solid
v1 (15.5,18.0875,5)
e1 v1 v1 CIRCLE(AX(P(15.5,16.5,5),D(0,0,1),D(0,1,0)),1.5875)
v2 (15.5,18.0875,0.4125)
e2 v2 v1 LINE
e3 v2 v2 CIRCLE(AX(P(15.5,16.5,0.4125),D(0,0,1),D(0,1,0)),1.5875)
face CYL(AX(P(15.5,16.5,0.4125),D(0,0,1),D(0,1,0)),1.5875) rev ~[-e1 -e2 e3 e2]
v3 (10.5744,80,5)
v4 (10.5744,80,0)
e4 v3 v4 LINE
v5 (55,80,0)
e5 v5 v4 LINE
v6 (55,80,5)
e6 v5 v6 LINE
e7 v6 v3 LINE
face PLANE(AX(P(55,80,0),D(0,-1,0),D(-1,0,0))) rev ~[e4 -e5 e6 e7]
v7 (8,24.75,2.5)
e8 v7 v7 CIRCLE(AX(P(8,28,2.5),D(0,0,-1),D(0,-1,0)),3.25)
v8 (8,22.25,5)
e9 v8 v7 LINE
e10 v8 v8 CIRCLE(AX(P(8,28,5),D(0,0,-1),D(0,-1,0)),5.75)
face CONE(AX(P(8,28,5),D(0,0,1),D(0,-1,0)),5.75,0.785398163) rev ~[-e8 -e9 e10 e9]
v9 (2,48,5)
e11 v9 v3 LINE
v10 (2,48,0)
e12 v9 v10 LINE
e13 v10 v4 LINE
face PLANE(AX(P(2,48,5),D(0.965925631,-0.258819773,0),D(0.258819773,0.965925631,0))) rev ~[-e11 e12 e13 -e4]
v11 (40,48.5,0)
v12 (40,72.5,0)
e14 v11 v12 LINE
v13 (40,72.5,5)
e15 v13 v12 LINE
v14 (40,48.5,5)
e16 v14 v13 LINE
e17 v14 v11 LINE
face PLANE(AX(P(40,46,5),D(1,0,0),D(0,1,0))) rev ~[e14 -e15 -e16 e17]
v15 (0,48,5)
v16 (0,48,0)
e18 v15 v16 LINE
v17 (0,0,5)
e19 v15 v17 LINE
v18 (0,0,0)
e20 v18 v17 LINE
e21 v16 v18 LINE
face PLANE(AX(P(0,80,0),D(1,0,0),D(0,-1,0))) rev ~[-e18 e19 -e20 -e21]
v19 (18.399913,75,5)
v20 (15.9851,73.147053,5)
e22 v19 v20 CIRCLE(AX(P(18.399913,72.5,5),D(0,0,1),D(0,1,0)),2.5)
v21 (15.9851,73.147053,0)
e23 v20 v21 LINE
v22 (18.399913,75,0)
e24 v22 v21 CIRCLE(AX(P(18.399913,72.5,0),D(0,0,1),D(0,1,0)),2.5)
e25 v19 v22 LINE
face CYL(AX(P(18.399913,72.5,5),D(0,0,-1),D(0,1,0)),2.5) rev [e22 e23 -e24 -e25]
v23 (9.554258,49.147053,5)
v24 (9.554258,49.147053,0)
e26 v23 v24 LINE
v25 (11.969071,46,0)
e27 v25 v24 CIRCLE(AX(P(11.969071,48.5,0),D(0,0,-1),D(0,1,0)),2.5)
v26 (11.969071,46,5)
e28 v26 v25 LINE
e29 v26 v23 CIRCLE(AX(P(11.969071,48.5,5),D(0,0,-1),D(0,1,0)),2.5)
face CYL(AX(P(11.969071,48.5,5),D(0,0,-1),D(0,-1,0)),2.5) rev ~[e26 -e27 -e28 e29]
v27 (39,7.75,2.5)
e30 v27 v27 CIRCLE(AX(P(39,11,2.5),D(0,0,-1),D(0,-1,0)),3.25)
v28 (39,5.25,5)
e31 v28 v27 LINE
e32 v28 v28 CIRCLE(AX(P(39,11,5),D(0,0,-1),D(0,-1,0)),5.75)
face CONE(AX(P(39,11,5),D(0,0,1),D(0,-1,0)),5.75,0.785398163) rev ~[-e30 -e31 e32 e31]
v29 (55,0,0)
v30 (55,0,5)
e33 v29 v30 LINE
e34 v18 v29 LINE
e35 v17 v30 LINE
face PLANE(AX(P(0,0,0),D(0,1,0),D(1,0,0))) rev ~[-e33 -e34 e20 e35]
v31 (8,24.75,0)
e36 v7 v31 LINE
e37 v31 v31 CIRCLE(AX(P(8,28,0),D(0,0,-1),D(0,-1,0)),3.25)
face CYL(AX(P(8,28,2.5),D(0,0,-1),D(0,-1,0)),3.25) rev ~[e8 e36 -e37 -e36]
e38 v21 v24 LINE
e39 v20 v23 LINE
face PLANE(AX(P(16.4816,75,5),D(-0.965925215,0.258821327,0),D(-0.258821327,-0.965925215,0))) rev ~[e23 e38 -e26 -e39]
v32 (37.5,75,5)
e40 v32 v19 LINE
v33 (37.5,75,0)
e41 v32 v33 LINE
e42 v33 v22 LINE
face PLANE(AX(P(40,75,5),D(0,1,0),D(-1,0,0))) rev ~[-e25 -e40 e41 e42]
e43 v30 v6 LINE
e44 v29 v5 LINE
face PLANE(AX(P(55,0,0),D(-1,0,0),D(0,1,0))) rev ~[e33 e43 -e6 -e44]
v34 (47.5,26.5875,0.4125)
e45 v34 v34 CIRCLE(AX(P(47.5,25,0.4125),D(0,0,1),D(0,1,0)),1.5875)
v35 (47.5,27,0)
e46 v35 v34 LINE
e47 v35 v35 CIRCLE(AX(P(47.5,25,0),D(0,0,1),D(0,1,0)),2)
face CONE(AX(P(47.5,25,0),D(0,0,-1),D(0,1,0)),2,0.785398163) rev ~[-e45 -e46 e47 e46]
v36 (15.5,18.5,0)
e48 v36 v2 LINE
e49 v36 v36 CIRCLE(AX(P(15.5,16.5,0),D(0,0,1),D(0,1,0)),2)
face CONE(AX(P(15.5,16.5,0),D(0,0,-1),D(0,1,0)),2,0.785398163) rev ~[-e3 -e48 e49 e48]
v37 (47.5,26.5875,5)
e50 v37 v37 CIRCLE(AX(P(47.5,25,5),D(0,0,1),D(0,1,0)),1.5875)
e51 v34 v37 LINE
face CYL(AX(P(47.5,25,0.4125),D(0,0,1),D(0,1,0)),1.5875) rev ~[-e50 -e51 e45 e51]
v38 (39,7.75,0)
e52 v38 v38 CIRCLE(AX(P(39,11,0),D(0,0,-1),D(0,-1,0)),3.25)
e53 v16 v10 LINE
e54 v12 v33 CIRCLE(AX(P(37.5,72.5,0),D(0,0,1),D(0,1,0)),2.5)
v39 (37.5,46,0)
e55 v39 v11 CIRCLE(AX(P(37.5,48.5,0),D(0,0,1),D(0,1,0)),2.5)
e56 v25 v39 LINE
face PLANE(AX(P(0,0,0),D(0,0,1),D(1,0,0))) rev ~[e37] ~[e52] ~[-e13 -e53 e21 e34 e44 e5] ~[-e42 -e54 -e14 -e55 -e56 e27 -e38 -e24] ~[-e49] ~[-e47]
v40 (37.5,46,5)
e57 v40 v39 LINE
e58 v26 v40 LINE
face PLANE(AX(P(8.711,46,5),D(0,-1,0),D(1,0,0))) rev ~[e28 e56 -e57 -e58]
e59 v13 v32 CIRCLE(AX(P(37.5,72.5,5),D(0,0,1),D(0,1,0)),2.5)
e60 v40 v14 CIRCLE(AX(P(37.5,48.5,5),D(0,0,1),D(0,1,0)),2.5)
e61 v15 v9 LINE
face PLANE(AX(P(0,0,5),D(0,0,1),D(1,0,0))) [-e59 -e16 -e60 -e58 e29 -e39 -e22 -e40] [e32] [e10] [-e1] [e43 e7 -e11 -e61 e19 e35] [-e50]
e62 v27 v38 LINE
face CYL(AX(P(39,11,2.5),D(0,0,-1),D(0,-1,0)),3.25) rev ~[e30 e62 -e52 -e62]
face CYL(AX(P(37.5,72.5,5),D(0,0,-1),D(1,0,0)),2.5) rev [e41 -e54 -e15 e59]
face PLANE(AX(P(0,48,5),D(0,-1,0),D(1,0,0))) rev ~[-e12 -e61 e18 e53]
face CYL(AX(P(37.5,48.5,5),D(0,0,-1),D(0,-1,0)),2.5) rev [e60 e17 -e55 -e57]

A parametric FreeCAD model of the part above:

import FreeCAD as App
import Part
import Sketcher
Q = App.Units.Quantity


def edges_at(feature, points):
    """Names of the edges that pass closest to the given points."""
    edges = feature.Shape.Edges
    near = lambda p: min(range(len(edges)), key=lambda i: edges[i].distToShape(Part.Vertex(*p))[0])
    return sorted({f"Edge{near(p) + 1}" for p in points})


def add_polygon(sketch, points):
    """Adds a closed chain of lines whose ends are joined by coincident constraints."""
    first, n = sketch.GeometryCount, len(points)
    for a, b in zip(points, points[1:] + points[:1]):
        sketch.addGeometry(Part.LineSegment(App.Vector(*a, 0), App.Vector(*b, 0)), False)
    for i in range(n):
        sketch.addConstraint(Sketcher.Constraint("Coincident", first + i, 2, first + (i + 1) % n, 1))

doc = App.newDocument("Part")
body = doc.addObject("PartDesign::Body", "Body")

# Sketch on XY plane
sketch1 = body.newObject("Sketcher::SketchObject", "Sketch")
sketch1.AttachmentSupport = (doc.getObject("XY_Plane"), [""])
sketch1.MapMode = "FlatFace"
add_polygon(sketch1, [(0, 80), (0, 0), (55, 0), (55, 80)])  # lines 0-3
sketch1.addConstraint(Sketcher.Constraint("Vertical", 0))
sketch1.addConstraint(Sketcher.Constraint("Horizontal", 1))
sketch1.addConstraint(Sketcher.Constraint("Vertical", 2))
sketch1.addConstraint(Sketcher.Constraint("Horizontal", 3))
sketch1.addConstraint(Sketcher.Constraint("Coincident", 0, 2, -1, 1))
sketch1.addConstraint(Sketcher.Constraint("DistanceX", 1, 1, 1, 2, 55.0))
sketch1.addConstraint(Sketcher.Constraint("DistanceY", 0, 2, 0, 1, 80.0))
pad1 = body.newObject("PartDesign::Pad", "Pad")
pad1.Profile = sketch1
pad1.Length = 5

# Sketch on XY plane
sketch2 = body.newObject("Sketcher::SketchObject", "Sketch001")
sketch2.AttachmentSupport = (doc.getObject("XY_Plane"), [""])
sketch2.MapMode = "FlatFace"
sketch2.AttachmentOffset = App.Placement(App.Vector(0, 0, 5), App.Rotation())
add_polygon(sketch2, [(0, 80), (0, 48), (2, 48), (10.5744, 80)])  # lines 0-3
sketch2.addConstraint(Sketcher.Constraint("Vertical", 0))
sketch2.addConstraint(Sketcher.Constraint("Horizontal", 1))
sketch2.addConstraint(Sketcher.Constraint("Horizontal", 3))
sketch2.addConstraint(Sketcher.Constraint("PointOnObject", 0, 2, -2))
sketch2.addConstraint(Sketcher.Constraint("DistanceX", 1, 1, 1, 2, 2.0))
sketch2.addConstraint(Sketcher.Constraint("DistanceY", -1, 1, 0, 2, 48.0))
sketch2.addConstraint(Sketcher.Constraint("DistanceY", 0, 2, 0, 1, 32.0))
sketch2.addConstraint(Sketcher.Constraint("Angle", 2, Q("75 deg")))
pocket1 = body.newObject("PartDesign::Pocket", "Pocket")
pocket1.Profile = sketch2
pocket1.Length = 5

# Sketch on XY plane
sketch3 = body.newObject("Sketcher::SketchObject", "Sketch002")
sketch3.AttachmentSupport = (doc.getObject("XY_Plane"), [""])
sketch3.MapMode = "FlatFace"
sketch3.AttachmentOffset = App.Placement(App.Vector(0, 0, 5), App.Rotation())
add_polygon(sketch3, [(8.711, 46), (40, 46), (40, 75), (16.4816, 75)])  # lines 0-3
sketch3.addConstraint(Sketcher.Constraint("Horizontal", 0))
sketch3.addConstraint(Sketcher.Constraint("Vertical", 1))
sketch3.addConstraint(Sketcher.Constraint("Horizontal", 2))
sketch3.addConstraint(Sketcher.Constraint("DistanceY", 1, 1, 1, 2, 29.0))
sketch3.addConstraint(Sketcher.Constraint("Angle", 3, Q("-105.0001 deg")))
sketch3.addConstraint(Sketcher.Constraint("DistanceX", -1, 1, 0, 2, 40.0))
sketch3.addConstraint(Sketcher.Constraint("DistanceY", -1, 1, 0, 2, 46.0))
sketch3.addConstraint(Sketcher.Constraint("DistanceX", 0, 1, 0, 2, 31.289))
pocket2 = body.newObject("PartDesign::Pocket", "Pocket001")
pocket2.Profile = sketch3
pocket2.Length = 5
doc.recompute()

fillet = body.newObject("PartDesign::Fillet", "Fillet")
fillet.Base = (pocket2, edges_at(pocket2, [
    (16.482, 75, 2.5),
    (40, 75, 2.5),
    (8.711, 46, 2.5),
    (40, 46, 2.5),
]))
fillet.Radius = 2.5

# Sketch on XY plane
sketch4 = body.newObject("Sketcher::SketchObject", "Sketch003")
sketch4.AttachmentSupport = (doc.getObject("XY_Plane"), [""])
sketch4.MapMode = "FlatFace"
sketch4.AttachmentOffset = App.Placement(App.Vector(0, 0, 5), App.Rotation())
sketch4.addGeometry(Part.Circle(App.Vector(8, 28, 0), App.Vector(0, 0, 1), 3.25), False)
sketch4.addGeometry(Part.Circle(App.Vector(39, 11, 0), App.Vector(0, 0, 1), 3.25), False)
sketch4.addConstraint(Sketcher.Constraint("Equal", 0, 1))
sketch4.addConstraint(Sketcher.Constraint("Diameter", 0, 6.5))
sketch4.addConstraint(Sketcher.Constraint("DistanceX", -1, 1, 0, 3, 8.0))
sketch4.addConstraint(Sketcher.Constraint("DistanceY", -1, 1, 0, 3, 28.0))
sketch4.addConstraint(Sketcher.Constraint("DistanceX", -1, 1, 1, 3, 39.0))
sketch4.addConstraint(Sketcher.Constraint("DistanceY", -1, 1, 1, 3, 11.0))
doc.recompute()
hole = body.newObject("PartDesign::Hole", "Hole")
hole.Profile = sketch4
hole.ThreadType = "None"
hole.Diameter = 6.5
hole.DepthType = "Dimension"
hole.Depth = 5
hole.DrillPoint = "Angled"
hole.DrillPointAngle = 118
hole.HoleCutType = "Countersink"
hole.HoleCutDiameter = 11.5
hole.HoleCutCountersinkAngle = 90

# Sketch on XY plane
sketch5 = body.newObject("Sketcher::SketchObject", "Sketch004")
sketch5.AttachmentSupport = (doc.getObject("XY_Plane"), [""])
sketch5.MapMode = "FlatFace"
sketch5.addGeometry(Part.Circle(App.Vector(15.5, 16.5, 0), App.Vector(0, 0, 1), 1.5875), False)
sketch5.addGeometry(Part.Circle(App.Vector(47.5, 25, 0), App.Vector(0, 0, 1), 1.5875), False)
sketch5.addConstraint(Sketcher.Constraint("Equal", 0, 1))
sketch5.addConstraint(Sketcher.Constraint("Diameter", 0, 3.175))
sketch5.addConstraint(Sketcher.Constraint("DistanceY", -1, 1, 1, 3, 25.0))
sketch5.addConstraint(Sketcher.Constraint("DistanceX", 0, 3, 1, 3, 32.0))
sketch5.addConstraint(Sketcher.Constraint("DistanceX", -1, 1, 0, 3, 15.5))
sketch5.addConstraint(Sketcher.Constraint("DistanceY", -1, 1, 0, 3, 16.5))
doc.recompute()
hole2 = body.newObject("PartDesign::Hole", "Hole001")
hole2.Profile = sketch5
hole2.ThreadType = "None"
hole2.Diameter = 3.175
hole2.DepthType = "Dimension"
hole2.Depth = 5
hole2.DrillPoint = "Angled"
hole2.DrillPointAngle = 118
hole2.HoleCutType = "Countersink"
hole2.HoleCutDiameter = 4
hole2.HoleCutCountersinkAngle = 90
hole2.Reversed = True

doc.recompute()
